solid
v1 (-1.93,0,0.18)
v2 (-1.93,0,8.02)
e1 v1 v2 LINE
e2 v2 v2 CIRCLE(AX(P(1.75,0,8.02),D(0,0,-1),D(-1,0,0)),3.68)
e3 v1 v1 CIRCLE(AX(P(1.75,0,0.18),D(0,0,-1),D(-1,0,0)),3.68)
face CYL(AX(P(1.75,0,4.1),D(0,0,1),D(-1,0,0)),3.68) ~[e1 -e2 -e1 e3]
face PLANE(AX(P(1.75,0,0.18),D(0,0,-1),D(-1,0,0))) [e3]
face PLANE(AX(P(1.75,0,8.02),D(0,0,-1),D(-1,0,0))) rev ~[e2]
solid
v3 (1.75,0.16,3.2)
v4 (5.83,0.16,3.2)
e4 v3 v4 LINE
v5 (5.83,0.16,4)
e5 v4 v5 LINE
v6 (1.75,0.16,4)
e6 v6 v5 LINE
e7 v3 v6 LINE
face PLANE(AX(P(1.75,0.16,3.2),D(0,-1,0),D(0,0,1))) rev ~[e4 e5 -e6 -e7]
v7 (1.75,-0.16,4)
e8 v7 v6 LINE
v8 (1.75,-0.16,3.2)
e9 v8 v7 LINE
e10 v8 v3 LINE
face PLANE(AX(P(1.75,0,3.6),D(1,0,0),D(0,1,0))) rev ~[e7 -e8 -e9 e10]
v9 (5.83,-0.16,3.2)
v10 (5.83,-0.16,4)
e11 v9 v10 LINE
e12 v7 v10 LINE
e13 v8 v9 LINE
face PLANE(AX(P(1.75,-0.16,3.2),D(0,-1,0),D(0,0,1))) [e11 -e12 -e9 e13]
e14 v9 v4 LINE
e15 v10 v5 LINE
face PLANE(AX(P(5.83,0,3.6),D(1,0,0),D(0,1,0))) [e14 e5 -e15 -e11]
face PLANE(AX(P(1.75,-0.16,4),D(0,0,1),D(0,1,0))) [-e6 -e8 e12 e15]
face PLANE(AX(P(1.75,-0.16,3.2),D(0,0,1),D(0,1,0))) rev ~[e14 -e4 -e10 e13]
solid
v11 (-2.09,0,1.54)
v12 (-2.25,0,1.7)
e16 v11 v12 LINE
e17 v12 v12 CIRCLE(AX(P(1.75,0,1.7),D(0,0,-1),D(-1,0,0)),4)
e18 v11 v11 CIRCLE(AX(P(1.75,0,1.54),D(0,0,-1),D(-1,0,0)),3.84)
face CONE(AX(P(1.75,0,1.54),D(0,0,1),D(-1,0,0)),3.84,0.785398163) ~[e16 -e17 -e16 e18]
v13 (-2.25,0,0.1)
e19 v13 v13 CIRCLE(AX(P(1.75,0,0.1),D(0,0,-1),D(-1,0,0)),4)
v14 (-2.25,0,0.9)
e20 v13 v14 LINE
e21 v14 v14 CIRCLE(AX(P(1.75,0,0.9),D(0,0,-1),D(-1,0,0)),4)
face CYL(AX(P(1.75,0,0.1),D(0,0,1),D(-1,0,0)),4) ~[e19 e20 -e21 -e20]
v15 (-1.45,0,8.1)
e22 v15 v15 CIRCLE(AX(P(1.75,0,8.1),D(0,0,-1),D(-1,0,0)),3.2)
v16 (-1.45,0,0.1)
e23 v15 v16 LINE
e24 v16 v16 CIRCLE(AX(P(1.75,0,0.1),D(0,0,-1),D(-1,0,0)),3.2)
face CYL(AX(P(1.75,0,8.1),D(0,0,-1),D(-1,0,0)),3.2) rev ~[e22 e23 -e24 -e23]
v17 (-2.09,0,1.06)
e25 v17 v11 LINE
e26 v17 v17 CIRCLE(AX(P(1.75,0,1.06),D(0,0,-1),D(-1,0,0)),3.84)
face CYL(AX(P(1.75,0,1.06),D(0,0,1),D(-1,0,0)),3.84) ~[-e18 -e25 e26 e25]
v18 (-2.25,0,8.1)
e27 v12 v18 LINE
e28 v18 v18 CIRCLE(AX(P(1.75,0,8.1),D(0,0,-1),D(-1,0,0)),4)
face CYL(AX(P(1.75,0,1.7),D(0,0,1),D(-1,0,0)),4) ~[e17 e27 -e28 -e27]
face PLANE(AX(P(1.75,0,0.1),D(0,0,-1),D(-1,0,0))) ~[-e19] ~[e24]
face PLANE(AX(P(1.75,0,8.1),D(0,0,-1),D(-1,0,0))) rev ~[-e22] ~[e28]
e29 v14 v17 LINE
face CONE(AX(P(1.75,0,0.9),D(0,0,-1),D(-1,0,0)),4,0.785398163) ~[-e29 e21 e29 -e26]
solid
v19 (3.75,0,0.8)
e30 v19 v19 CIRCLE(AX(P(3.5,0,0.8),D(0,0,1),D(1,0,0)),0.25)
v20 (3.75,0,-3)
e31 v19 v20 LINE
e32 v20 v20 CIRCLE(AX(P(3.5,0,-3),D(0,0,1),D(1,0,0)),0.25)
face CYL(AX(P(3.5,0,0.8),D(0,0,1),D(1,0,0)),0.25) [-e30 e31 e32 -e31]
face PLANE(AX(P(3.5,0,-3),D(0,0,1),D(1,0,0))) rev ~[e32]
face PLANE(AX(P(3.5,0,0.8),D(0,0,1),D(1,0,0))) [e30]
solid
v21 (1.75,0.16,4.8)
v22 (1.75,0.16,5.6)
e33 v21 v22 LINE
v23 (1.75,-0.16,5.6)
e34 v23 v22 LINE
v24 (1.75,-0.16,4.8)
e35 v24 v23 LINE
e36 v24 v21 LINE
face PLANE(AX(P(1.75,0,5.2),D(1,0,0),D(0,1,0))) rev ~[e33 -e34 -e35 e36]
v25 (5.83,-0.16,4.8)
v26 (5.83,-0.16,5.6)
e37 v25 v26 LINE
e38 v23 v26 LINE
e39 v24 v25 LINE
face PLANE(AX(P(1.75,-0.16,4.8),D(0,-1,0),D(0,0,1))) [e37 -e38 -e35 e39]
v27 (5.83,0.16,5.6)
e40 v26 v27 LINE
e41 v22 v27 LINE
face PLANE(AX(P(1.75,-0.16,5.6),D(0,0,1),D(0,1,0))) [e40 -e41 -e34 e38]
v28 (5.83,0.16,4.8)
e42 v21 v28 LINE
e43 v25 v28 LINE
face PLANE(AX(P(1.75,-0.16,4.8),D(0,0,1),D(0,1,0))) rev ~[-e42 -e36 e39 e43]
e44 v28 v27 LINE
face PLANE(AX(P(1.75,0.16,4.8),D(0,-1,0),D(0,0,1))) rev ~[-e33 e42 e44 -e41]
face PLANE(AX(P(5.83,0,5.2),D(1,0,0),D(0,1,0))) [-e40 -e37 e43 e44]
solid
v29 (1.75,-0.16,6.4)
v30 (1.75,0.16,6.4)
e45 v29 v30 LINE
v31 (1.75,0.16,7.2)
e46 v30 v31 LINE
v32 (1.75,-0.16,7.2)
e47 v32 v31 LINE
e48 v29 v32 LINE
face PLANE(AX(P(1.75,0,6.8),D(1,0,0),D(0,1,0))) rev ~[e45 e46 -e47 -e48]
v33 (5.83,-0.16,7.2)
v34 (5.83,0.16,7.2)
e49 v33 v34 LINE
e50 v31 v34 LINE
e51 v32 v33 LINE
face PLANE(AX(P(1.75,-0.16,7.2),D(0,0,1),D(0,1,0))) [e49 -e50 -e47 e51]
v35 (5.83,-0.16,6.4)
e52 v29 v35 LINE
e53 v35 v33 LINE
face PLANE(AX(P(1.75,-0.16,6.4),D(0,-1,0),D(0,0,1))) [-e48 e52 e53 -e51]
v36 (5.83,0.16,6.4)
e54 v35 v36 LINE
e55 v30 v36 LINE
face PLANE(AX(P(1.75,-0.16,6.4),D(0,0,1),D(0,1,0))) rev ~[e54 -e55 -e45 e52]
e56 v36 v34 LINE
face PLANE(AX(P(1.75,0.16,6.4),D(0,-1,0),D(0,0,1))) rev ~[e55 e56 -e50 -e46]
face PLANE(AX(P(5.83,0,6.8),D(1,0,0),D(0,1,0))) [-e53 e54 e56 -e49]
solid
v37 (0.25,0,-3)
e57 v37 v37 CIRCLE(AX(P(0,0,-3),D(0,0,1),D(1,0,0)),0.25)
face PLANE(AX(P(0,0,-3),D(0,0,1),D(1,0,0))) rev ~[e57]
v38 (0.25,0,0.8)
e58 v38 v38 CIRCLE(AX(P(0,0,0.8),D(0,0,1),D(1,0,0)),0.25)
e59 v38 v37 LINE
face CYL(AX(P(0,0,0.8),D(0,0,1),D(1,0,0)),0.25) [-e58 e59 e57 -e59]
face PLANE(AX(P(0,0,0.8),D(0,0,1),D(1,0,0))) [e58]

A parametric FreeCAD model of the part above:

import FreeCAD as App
import Part
import Sketcher

V = App.Vector

doc = App.newDocument("Part")
params = doc.addObject("Spreadsheet::Sheet", "Params")
for row, (alias, value) in enumerate([
    ("sketch1_height", "8 mm"),
    ("sketch1_width", "0.8 mm"),
    ("sketch1_height2", "6.4 mm"),
    ("sketch1_height3", "0.48 mm"),
    ("revolution_angle", "360 deg"),
    ("sketch2_width", "3.68 mm"),
    ("sketch2_height", "7.84 mm"),
    ("revolution2_angle", "360 deg"),
    ("sketch3_diameter", "0.5 mm"),
    ("pad1_length", "3.8 mm"),
    ("sketch4_height", "0.8 mm"),
    ("sketch4_width", "0.32 mm"),
    ("pad2_length", "4.08 mm"),
], start=1):
    params.set(f"A{row}", alias)
    params.set(f"B{row}", "=" + value)
    params.setAlias(f"B{row}", alias)

body = doc.addObject("PartDesign::Body", "Body")

# Sketch on XZ plane
sketch1 = body.newObject("Sketcher::SketchObject", "Sketch")
sketch1.AttachmentSupport = (doc.getObject("XZ_Plane"), [""])
sketch1.MapMode = "FlatFace"
sketch1.addGeometry([
    Part.LineSegment(V(-2.25, 0.9, 0), V(-2.25, 0.1, 0)),  # 0
    Part.LineSegment(V(-2.25, 0.1, 0), V(-1.45, 0.1, 0)),  # 1
    Part.LineSegment(V(-1.45, 0.1, 0), V(-1.45, 8.1, 0)),  # 2
    Part.LineSegment(V(-1.45, 8.1, 0), V(-2.25, 8.1, 0)),  # 3
    Part.LineSegment(V(-2.25, 8.1, 0), V(-2.25, 1.7, 0)),  # 4
    Part.LineSegment(V(-2.25, 1.7, 0), V(-2.09, 1.54, 0)),  # 5
    Part.LineSegment(V(-2.09, 1.54, 0), V(-2.09, 1.06, 0)),  # 6
    Part.LineSegment(V(-2.09, 1.06, 0), V(-2.25, 0.9, 0)),  # 7
], False)
sketch1.addGeometry(Part.LineSegment(V(1.75, 8.1, 0), V(1.75, 0.1, 0)), True)  # axis
sketch1.addConstraint([
    Sketcher.Constraint("Coincident", 0, 2, 1, 1),
    Sketcher.Constraint("Coincident", 1, 2, 2, 1),
    Sketcher.Constraint("Coincident", 2, 2, 3, 1),
    Sketcher.Constraint("Coincident", 3, 2, 4, 1),
    Sketcher.Constraint("Coincident", 4, 2, 5, 1),
    Sketcher.Constraint("Coincident", 5, 2, 6, 1),
    Sketcher.Constraint("Coincident", 6, 2, 7, 1),
    Sketcher.Constraint("Coincident", 7, 2, 0, 1),
    Sketcher.Constraint("Vertical", 0),
    Sketcher.Constraint("Horizontal", 1),
    Sketcher.Constraint("Vertical", 2),
    Sketcher.Constraint("Horizontal", 3),
    Sketcher.Constraint("Vertical", 4),
    Sketcher.Constraint("Vertical", 6),
    Sketcher.Constraint("Vertical", 8),
    Sketcher.Constraint("Perpendicular", 5, 7),
    Sketcher.Constraint("Horizontal", 3, 2, 8, 1),
    Sketcher.Constraint("Horizontal", 1, 2, 8, 2),
    Sketcher.Constraint("Vertical", 0, 2, 3, 2),
    Sketcher.Constraint("Equal", 3, 0),
    Sketcher.Constraint("Equal", 5, 7),
    Sketcher.Constraint("DistanceY", 2, 1, 2, 2, 8.0),
    Sketcher.Constraint("DistanceX", 1, 1, 1, 2, 0.8),
    Sketcher.Constraint("DistanceY", 4, 2, 4, 1, 6.4),
    Sketcher.Constraint("DistanceX", 3, 2, 8, 1, 4.0),
    Sketcher.Constraint("DistanceY", 6, 2, 6, 1, 0.48),
    Sketcher.Constraint("DistanceY", -1, 1, 0, 2, 0.1),
    Sketcher.Constraint("DistanceX", 0, 2, -1, 1, 2.25),
])
sketch1.setExpression("Constraints[21]", "Params.sketch1_height")
sketch1.setExpression("Constraints[22]", "Params.sketch1_width")
sketch1.setExpression("Constraints[23]", "Params.sketch1_height2")
sketch1.setExpression("Constraints[25]", "Params.sketch1_height3")
revolution = body.newObject("PartDesign::Revolution", "Revolution")
revolution.Profile = sketch1
revolution.ReferenceAxis = (sketch1, ["Axis0"])
revolution.setExpression("Angle", "Params.revolution_angle")
body2 = doc.addObject("PartDesign::Body", "Body001")

# Sketch on XZ plane
sketch2 = body2.newObject("Sketcher::SketchObject", "Sketch001")
sketch2.AttachmentSupport = (doc.getObject("XZ_Plane001"), [""])
sketch2.MapMode = "FlatFace"
sketch2.addGeometry([
    Part.LineSegment(V(-1.9, 8, 0), V(-1.9, 0.2, 0)),
    Part.LineSegment(V(-1.9, 0.2, 0), V(1.8, 0.2, 0)),
    Part.LineSegment(V(1.8, 0.2, 0), V(1.8, 8, 0)),
    Part.LineSegment(V(1.8, 8, 0), V(-1.9, 8, 0)),
], False)
sketch2.addGeometry(Part.LineSegment(V(1.8, 8, 0), V(1.8, 0.2, 0)), True)  # axis
sketch2.addConstraint([
    Sketcher.Constraint("Coincident", 0, 2, 1, 1),
    Sketcher.Constraint("Coincident", 1, 2, 2, 1),
    Sketcher.Constraint("Coincident", 2, 2, 3, 1),
    Sketcher.Constraint("Coincident", 3, 2, 0, 1),
    Sketcher.Constraint("Vertical", 0),
    Sketcher.Constraint("Horizontal", 1),
    Sketcher.Constraint("Vertical", 2),
    Sketcher.Constraint("Horizontal", 3),
    Sketcher.Constraint("Vertical", 4),
    Sketcher.Constraint("Coincident", 4, 1, 2, 2),
    Sketcher.Constraint("Horizontal", 0, 2, 4, 2),
    Sketcher.Constraint("DistanceX", 1, 1, 1, 2, 3.68),
    Sketcher.Constraint("DistanceY", 0, 2, 0, 1, 7.84),
    Sketcher.Constraint("DistanceX", 0, 2, -1, 1, 1.93),
    Sketcher.Constraint("DistanceY", -1, 1, 0, 2, 0.18),
])
sketch2.setExpression("Constraints[11]", "Params.sketch2_width")
sketch2.setExpression("Constraints[12]", "Params.sketch2_height")
revolution2 = body2.newObject("PartDesign::Revolution", "Revolution001")
revolution2.Profile = sketch2
revolution2.ReferenceAxis = (sketch2, ["Axis0"])
revolution2.setExpression("Angle", "Params.revolution2_angle")
body3 = doc.addObject("PartDesign::Body", "Body002")
body3.AllowCompound = True

# Sketch on XY plane
sketch3 = body3.newObject("Sketcher::SketchObject", "Sketch002")
sketch3.AttachmentSupport = (doc.getObject("XY_Plane002"), [""])
sketch3.MapMode = "FlatFace"
sketch3.AttachmentOffset = App.Placement(V(0, 0, 0.8), App.Rotation())
sketch3.addGeometry([
    Part.Circle(V(0, 0, 0), V(0, 0, 1), 0.25),
    Part.Circle(V(3.5, 0, 0), V(0, 0, 1), 0.25),
], False)
sketch3.addConstraint([
    Sketcher.Constraint("Coincident", 0, 3, -1, 1),
    Sketcher.Constraint("Equal", 0, 1),
    Sketcher.Constraint("PointOnObject", 1, 3, -1),
    Sketcher.Constraint("Diameter", 0, 0.5),
    Sketcher.Constraint("DistanceX", -1, 1, 1, 3, 3.5),
])
sketch3.setExpression("Constraints[3]", "Params.sketch3_diameter")
pad1 = body3.newObject("PartDesign::Pad", "Pad")
pad1.Profile = sketch3
pad1.setExpression("Length", "Params.pad1_length")
pad1.Reversed = True
body4 = doc.addObject("PartDesign::Body", "Body003")
body4.AllowCompound = True

# Sketch on YZ plane
sketch4 = body4.newObject("Sketcher::SketchObject", "Sketch003")
sketch4.AttachmentSupport = (doc.getObject("YZ_Plane003"), [""])
sketch4.MapMode = "FlatFace"
sketch4.AttachmentOffset = App.Placement(V(0, 0, 1.75), App.Rotation())
sketch4.addGeometry([
    Part.LineSegment(V(-0.16, 4, 0), V(-0.16, 3.2, 0)),  # 0
    Part.LineSegment(V(-0.16, 3.2, 0), V(0.16, 3.2, 0)),  # 1
    Part.LineSegment(V(0.16, 3.2, 0), V(0.16, 4, 0)),  # 2
    Part.LineSegment(V(0.16, 4, 0), V(-0.16, 4, 0)),  # 3
    Part.LineSegment(V(-0.16, 5.6, 0), V(-0.16, 4.8, 0)),  # 4
    Part.LineSegment(V(-0.16, 4.8, 0), V(0.16, 4.8, 0)),  # 5
    Part.LineSegment(V(0.16, 4.8, 0), V(0.16, 5.6, 0)),  # 6
    Part.LineSegment(V(0.16, 5.6, 0), V(-0.16, 5.6, 0)),  # 7
    Part.LineSegment(V(-0.16, 7.2, 0), V(-0.16, 6.4, 0)),  # 8
    Part.LineSegment(V(-0.16, 6.4, 0), V(0.16, 6.4, 0)),  # 9
    Part.LineSegment(V(0.16, 6.4, 0), V(0.16, 7.2, 0)),  # 10
    Part.LineSegment(V(0.16, 7.2, 0), V(-0.16, 7.2, 0)),  # 11
], False)
sketch4.addConstraint([
    Sketcher.Constraint("Coincident", 0, 2, 1, 1),
    Sketcher.Constraint("Coincident", 1, 2, 2, 1),
    Sketcher.Constraint("Coincident", 2, 2, 3, 1),
    Sketcher.Constraint("Coincident", 3, 2, 0, 1),
    Sketcher.Constraint("Coincident", 4, 2, 5, 1),
    Sketcher.Constraint("Coincident", 5, 2, 6, 1),
    Sketcher.Constraint("Coincident", 6, 2, 7, 1),
    Sketcher.Constraint("Coincident", 7, 2, 4, 1),
    Sketcher.Constraint("Coincident", 8, 2, 9, 1),
    Sketcher.Constraint("Coincident", 9, 2, 10, 1),
    Sketcher.Constraint("Coincident", 10, 2, 11, 1),
    Sketcher.Constraint("Coincident", 11, 2, 8, 1),
    Sketcher.Constraint("Vertical", 0),
    Sketcher.Constraint("Horizontal", 1),
    Sketcher.Constraint("Vertical", 2),
    Sketcher.Constraint("Horizontal", 3),
    Sketcher.Constraint("Vertical", 4),
    Sketcher.Constraint("Horizontal", 5),
    Sketcher.Constraint("Vertical", 6),
    Sketcher.Constraint("Horizontal", 7),
    Sketcher.Constraint("Vertical", 8),
    Sketcher.Constraint("Horizontal", 9),
    Sketcher.Constraint("Vertical", 10),
    Sketcher.Constraint("Horizontal", 11),
    Sketcher.Constraint("Vertical", 3, 2, 4, 2),
    Sketcher.Constraint("Vertical", 2, 2, 5, 2),
    Sketcher.Constraint("Vertical", 7, 2, 8, 2),
    Sketcher.Constraint("Vertical", 6, 2, 9, 2),
    Sketcher.Constraint("Equal", 2, 4),
    Sketcher.Constraint("Equal", 6, 8),
    Sketcher.Constraint("DistanceY", 0, 2, 0, 1, 0.8),
    Sketcher.Constraint("DistanceY", -1, 1, 2, 2, 4.0),
    Sketcher.Constraint("DistanceX", 1, 1, 1, 2, 0.32),
    Sketcher.Constraint("DistanceY", -1, 1, 4, 2, 4.8),
    Sketcher.Constraint("DistanceY", -1, 1, 8, 2, 6.4),
    Sketcher.Constraint("DistanceX", 0, 2, -1, 1, 0.16),
])
sketch4.setExpression("Constraints[30]", "Params.sketch4_height")
sketch4.setExpression("Constraints[32]", "Params.sketch4_width")
pad2 = body4.newObject("PartDesign::Pad", "Pad001")
pad2.Profile = sketch4
pad2.setExpression("Length", "Params.pad2_length")

doc.recompute()
